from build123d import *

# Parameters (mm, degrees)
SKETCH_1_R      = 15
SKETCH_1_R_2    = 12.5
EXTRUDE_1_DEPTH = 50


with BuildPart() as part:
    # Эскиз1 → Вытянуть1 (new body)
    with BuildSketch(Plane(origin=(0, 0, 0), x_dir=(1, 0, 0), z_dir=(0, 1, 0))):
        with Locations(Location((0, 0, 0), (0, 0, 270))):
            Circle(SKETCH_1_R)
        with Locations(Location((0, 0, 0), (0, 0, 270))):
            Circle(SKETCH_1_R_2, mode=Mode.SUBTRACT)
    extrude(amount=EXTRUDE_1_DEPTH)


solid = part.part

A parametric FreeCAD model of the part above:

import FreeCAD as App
import Part
import Sketcher
from FreeCAD import Vector
Q = App.Units.Quantity

doc = App.newDocument("Part")
params = doc.addObject("Spreadsheet::Sheet", "Params")
for row, (alias, value) in enumerate([
    ("sketch1_diameter", "30 mm"),
    ("sketch1_diameter2", "25 mm"),
    ("pad1_length", "50 mm"),
], start=1):
    params.set(f"A{row}", alias)
    params.set(f"B{row}", "=" + value)
    params.setAlias(f"B{row}", alias)

body = doc.addObject("PartDesign::Body", "Body")

sketch1 = doc.addObject("Sketcher::SketchObject", "Sketch")
body.addObject(sketch1)
sketch1.AttachmentSupport = (doc.XZ_Plane, [""])
sketch1.MapMode = "FlatFace"
sketch1.addGeometry(Part.Circle(Vector(0, 0, 0), Vector(0, 0, 1), 15), False)
sketch1.addGeometry(Part.Circle(Vector(0, 0, 0), Vector(0, 0, 1), 12), False)
sketch1.addConstraint(Sketcher.Constraint("Coincident", 0, 3, -1, 1))
sketch1.addConstraint(Sketcher.Constraint("Coincident", 1, 3, -1, 1))
sketch1.addConstraint(Sketcher.Constraint("Diameter", 0, Q("30 mm")))
sketch1.addConstraint(Sketcher.Constraint("Diameter", 1, Q("25 mm")))
sketch1.setExpression("Constraints[2]", "Params.sketch1_diameter")
sketch1.setExpression("Constraints[3]", "Params.sketch1_diameter2")
pad1 = doc.addObject("PartDesign::Pad", "Pad")
body.addObject(pad1)
pad1.Profile = sketch1
pad1.setExpression("Length", "Params.pad1_length")
pad1.Reversed = True

doc.recompute()
